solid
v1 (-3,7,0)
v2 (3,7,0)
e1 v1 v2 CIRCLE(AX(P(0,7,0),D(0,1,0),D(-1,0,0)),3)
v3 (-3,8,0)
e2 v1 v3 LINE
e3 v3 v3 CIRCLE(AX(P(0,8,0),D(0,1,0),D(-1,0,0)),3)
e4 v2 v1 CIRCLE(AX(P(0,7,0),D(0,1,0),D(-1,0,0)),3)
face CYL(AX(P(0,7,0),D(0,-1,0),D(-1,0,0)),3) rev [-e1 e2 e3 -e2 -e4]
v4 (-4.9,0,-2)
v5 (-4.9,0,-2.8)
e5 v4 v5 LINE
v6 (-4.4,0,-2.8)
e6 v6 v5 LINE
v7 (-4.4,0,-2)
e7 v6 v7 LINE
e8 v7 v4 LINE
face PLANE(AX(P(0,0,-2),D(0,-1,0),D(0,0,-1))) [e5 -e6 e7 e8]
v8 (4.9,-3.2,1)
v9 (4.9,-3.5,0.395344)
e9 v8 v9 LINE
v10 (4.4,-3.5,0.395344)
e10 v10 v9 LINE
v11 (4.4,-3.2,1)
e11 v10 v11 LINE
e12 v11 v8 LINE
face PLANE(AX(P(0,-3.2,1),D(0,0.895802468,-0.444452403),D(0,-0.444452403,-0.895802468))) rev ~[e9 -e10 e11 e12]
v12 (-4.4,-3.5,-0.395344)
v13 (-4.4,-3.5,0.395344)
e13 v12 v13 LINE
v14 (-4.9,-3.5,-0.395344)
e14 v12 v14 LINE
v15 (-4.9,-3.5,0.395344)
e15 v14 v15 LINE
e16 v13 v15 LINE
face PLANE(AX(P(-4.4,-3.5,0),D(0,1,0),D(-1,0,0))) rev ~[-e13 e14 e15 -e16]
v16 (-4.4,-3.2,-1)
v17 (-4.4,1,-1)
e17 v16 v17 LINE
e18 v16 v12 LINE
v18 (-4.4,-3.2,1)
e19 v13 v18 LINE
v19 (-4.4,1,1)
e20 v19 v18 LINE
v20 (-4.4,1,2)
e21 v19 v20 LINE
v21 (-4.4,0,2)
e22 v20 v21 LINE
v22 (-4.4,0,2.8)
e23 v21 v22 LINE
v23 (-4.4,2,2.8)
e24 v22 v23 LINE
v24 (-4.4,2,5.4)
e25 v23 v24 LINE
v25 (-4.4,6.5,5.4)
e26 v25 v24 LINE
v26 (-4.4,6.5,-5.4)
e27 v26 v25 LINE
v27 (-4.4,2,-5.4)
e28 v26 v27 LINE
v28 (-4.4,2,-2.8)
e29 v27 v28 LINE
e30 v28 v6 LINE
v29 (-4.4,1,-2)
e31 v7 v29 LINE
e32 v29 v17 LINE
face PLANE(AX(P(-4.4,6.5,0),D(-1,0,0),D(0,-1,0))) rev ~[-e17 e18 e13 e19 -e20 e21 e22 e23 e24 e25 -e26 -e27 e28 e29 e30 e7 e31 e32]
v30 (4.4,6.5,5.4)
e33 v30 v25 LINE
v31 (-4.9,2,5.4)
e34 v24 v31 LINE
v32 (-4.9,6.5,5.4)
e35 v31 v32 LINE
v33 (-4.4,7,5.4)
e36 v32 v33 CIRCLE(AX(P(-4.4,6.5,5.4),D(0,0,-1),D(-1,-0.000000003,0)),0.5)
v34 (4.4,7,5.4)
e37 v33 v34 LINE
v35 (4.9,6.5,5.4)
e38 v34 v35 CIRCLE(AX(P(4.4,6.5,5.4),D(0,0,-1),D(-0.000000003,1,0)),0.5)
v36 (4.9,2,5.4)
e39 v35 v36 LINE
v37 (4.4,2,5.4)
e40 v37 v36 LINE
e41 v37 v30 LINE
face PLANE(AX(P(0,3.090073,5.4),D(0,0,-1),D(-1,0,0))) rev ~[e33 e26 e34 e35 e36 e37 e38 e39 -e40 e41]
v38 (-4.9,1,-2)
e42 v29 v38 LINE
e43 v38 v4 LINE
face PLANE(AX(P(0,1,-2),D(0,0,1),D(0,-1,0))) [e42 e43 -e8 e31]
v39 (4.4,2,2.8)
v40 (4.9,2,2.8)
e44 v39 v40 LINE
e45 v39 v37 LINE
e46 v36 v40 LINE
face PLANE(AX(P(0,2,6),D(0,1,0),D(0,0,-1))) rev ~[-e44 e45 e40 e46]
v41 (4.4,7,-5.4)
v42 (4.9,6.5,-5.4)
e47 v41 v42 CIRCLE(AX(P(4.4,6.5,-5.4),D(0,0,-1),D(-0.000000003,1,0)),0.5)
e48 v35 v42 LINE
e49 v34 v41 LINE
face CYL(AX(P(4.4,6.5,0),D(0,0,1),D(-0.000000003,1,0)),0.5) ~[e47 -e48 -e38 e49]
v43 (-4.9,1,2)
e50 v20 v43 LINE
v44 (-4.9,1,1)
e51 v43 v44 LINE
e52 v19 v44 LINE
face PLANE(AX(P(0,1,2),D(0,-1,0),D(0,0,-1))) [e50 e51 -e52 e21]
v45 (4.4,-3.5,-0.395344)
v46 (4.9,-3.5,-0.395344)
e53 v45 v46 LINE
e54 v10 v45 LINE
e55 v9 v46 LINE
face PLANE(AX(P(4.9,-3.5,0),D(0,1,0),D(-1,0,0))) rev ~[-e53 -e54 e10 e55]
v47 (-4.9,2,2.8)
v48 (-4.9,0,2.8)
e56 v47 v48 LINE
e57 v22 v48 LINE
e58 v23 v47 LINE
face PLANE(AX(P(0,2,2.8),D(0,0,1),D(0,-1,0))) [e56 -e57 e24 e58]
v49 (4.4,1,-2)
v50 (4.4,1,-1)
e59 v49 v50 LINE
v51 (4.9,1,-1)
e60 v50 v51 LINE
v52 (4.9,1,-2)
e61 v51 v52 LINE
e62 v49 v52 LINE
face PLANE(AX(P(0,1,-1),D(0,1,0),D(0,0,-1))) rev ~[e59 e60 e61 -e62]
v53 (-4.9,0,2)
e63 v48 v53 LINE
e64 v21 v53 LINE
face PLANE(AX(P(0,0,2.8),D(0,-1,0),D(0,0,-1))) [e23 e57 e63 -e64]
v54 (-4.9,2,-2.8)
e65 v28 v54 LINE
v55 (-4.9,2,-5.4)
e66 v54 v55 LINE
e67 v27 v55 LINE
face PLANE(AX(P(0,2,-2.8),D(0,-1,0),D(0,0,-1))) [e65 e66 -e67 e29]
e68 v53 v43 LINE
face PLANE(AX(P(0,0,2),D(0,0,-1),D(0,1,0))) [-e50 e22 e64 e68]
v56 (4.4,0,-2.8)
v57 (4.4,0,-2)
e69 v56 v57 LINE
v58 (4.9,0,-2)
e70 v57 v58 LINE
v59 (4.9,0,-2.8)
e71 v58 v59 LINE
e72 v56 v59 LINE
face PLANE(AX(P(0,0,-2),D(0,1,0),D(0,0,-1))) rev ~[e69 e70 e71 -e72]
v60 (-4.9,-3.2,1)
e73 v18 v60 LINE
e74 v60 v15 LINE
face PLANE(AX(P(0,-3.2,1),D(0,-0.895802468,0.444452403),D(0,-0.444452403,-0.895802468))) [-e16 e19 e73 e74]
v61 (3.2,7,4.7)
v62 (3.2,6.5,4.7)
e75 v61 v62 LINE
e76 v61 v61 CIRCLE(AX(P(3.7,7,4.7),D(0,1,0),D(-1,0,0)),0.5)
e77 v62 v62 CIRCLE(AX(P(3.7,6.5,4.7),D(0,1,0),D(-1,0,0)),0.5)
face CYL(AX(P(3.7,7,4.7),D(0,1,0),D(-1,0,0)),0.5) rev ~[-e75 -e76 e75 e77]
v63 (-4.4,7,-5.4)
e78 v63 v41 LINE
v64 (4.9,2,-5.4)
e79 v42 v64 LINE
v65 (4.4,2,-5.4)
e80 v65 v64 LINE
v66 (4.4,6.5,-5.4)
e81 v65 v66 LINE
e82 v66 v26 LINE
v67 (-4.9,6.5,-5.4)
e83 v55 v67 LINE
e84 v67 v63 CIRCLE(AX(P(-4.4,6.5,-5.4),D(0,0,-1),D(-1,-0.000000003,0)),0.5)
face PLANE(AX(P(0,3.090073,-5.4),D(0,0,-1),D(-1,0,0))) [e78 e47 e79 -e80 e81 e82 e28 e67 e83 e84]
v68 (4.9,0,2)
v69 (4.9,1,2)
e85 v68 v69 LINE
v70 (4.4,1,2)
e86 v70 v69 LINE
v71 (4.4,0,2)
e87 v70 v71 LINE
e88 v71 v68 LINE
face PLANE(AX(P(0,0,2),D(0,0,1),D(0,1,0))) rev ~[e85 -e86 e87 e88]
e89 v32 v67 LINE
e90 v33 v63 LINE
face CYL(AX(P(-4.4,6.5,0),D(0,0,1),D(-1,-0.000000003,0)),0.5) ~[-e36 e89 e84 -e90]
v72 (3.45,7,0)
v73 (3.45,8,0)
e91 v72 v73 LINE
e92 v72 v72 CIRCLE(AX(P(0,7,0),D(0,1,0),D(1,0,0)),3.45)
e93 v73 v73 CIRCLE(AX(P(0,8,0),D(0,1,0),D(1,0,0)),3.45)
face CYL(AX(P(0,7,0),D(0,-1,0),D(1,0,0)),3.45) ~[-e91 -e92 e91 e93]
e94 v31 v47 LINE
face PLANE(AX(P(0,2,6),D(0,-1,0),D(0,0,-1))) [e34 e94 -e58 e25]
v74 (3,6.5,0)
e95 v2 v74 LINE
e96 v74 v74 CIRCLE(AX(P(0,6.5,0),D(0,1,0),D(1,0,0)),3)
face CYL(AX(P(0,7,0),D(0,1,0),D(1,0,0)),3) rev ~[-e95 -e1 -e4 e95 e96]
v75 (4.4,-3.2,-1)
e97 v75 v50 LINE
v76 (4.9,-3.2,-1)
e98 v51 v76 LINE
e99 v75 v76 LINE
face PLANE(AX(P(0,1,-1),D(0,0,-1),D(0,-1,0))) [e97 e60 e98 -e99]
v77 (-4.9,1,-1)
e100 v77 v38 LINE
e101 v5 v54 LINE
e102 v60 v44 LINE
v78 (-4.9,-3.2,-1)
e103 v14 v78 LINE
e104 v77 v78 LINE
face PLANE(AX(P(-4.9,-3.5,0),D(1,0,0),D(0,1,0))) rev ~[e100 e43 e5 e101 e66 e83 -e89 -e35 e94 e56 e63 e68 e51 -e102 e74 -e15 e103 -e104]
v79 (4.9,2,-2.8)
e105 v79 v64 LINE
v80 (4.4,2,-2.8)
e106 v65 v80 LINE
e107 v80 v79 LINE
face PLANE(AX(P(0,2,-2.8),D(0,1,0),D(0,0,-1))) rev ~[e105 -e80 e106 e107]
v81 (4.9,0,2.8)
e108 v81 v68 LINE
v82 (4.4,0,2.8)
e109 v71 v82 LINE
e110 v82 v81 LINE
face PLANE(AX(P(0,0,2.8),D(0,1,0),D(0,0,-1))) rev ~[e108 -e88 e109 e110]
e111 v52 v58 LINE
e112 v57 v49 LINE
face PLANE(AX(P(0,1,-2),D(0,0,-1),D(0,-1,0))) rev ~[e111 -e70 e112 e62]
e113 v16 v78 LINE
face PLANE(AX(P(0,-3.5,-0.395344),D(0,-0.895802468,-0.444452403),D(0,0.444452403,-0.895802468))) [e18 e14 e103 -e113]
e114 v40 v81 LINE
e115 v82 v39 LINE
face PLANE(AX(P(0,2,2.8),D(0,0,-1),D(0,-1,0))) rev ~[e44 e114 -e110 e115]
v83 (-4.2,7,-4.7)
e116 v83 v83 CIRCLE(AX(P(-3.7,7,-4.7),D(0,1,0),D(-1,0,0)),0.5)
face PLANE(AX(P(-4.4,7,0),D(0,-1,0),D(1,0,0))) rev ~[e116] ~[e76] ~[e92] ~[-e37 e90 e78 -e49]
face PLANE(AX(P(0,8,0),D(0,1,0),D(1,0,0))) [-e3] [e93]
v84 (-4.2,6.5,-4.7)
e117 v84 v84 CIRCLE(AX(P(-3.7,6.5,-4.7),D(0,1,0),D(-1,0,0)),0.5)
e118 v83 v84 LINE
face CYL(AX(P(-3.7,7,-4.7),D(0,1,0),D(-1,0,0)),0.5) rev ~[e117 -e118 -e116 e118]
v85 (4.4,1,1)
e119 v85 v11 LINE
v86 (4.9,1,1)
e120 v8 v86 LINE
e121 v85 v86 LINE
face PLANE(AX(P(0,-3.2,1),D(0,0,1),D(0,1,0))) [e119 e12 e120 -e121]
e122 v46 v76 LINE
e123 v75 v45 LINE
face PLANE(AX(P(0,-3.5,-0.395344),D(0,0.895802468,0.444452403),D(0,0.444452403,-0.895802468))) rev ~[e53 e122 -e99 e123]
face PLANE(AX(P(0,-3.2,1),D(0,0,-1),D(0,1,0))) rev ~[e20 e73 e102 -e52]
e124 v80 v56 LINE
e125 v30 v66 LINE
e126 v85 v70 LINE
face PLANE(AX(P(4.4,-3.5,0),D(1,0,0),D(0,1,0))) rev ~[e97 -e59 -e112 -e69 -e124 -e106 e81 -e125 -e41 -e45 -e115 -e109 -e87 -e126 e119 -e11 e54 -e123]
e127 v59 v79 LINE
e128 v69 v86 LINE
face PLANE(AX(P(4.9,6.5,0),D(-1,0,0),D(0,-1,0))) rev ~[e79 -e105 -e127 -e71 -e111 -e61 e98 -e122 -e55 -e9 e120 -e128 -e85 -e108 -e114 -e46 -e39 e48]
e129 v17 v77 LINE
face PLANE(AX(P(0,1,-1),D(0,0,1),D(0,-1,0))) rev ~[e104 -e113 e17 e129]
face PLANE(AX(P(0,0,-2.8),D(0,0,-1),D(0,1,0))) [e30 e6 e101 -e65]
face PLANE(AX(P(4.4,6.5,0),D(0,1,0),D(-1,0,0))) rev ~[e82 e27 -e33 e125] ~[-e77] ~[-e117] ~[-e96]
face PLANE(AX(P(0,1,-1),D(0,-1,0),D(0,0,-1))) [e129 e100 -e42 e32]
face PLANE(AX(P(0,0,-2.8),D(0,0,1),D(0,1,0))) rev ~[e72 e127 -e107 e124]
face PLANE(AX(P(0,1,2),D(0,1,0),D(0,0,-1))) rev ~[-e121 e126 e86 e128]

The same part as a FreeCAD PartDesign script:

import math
import FreeCAD as App
import Part
import Sketcher
Q = App.Units.Quantity


def add_polygon(sketch, points):
    """Adds a closed chain of lines whose ends are joined by coincident constraints."""
    first, n = sketch.GeometryCount, len(points)
    for a, b in zip(points, points[1:] + points[:1]):
        sketch.addGeometry(Part.LineSegment(App.Vector(*a, 0), App.Vector(*b, 0)), False)
    for i in range(n):
        sketch.addConstraint(Sketcher.Constraint("Coincident", first + i, 2, first + (i + 1) % n, 1))

doc = App.newDocument("Part")
params = doc.addObject("Spreadsheet::Sheet", "Params")
for row, (alias, value) in enumerate([
    ("sketch1_radius", "0.5 mm"),
    ("sketch1_height", "10 mm"),
    ("sketch1_width", "8.8 mm"),
    ("pad1_length", "5.4 mm"),
    ("pad1_length2", "5.4 mm"),
    ("sketch2_width", "7 mm"),
    ("sketch2_width2", "2 mm"),
    ("sketch2_width3", "1 mm"),
    ("sketch2_height", "12 mm"),
    ("sketch2_width4", "4.2 mm"),
    ("sketch3_diameter", "1 mm"),
    ("sketch4_diameter", "6 mm"),
    ("sketch4_diameter2", "6.9 mm"),
    ("pad2_length", "1 mm"),
    ("sketch5_diameter", "6 mm"),
], start=1):
    params.set(f"A{row}", alias)
    params.set(f"B{row}", "=" + value)
    params.setAlias(f"B{row}", alias)

body = doc.addObject("PartDesign::Body", "Body")

sketch1 = doc.addObject("Sketcher::SketchObject", "Sketch")
body.addObject(sketch1)
sketch1.AttachmentSupport = (doc.XY_Plane, [""])
sketch1.MapMode = "FlatFace"
sketch1.addGeometry(Part.LineSegment(App.Vector(-4.9, 6.5, 0), App.Vector(-4.9, -3.5, 0)), False)
sketch1.addGeometry(Part.LineSegment(App.Vector(-4.9, -3.5, 0), App.Vector(-4.4, -3.5, 0)), False)
sketch1.addGeometry(Part.LineSegment(App.Vector(-4.4, -3.5, 0), App.Vector(-4.4, 6.5, 0)), False)
sketch1.addGeometry(Part.LineSegment(App.Vector(-4.4, 6.5, 0), App.Vector(4.4, 6.5, 0)), False)
sketch1.addGeometry(Part.LineSegment(App.Vector(4.4, 6.5, 0), App.Vector(4.4, -3.5, 0)), False)
sketch1.addGeometry(Part.LineSegment(App.Vector(4.4, -3.5, 0), App.Vector(4.9, -3.5, 0)), False)
sketch1.addGeometry(Part.LineSegment(App.Vector(4.9, -3.5, 0), App.Vector(4.9, 6.5, 0)), False)
sketch1.addGeometry(Part.ArcOfCircle(Part.Circle(App.Vector(4.4, 6.5, 0), App.Vector(0, 0, 1), 0.5), math.radians(0), math.radians(90)), False)
sketch1.addGeometry(Part.LineSegment(App.Vector(4.4, 7, 0), App.Vector(-4.4, 7, 0)), False)
sketch1.addGeometry(Part.ArcOfCircle(Part.Circle(App.Vector(-4.4, 6.5, 0), App.Vector(0, 0, 1), 0.5), math.radians(90), math.radians(180)), False)
sketch1.addConstraint(Sketcher.Constraint("Coincident", 0, 2, 1, 1))
sketch1.addConstraint(Sketcher.Constraint("Coincident", 1, 2, 2, 1))
sketch1.addConstraint(Sketcher.Constraint("Coincident", 2, 2, 3, 1))
sketch1.addConstraint(Sketcher.Constraint("Coincident", 3, 2, 4, 1))
sketch1.addConstraint(Sketcher.Constraint("Coincident", 4, 2, 5, 1))
sketch1.addConstraint(Sketcher.Constraint("Coincident", 5, 2, 6, 1))
sketch1.addConstraint(Sketcher.Constraint("Tangent", 6, 2, 7, 1))
sketch1.addConstraint(Sketcher.Constraint("Tangent", 7, 2, 8, 1))
sketch1.addConstraint(Sketcher.Constraint("Tangent", 8, 2, 9, 1))
sketch1.addConstraint(Sketcher.Constraint("Tangent", 9, 2, 0, 1))
sketch1.addConstraint(Sketcher.Constraint("Vertical", 0))
sketch1.addConstraint(Sketcher.Constraint("Horizontal", 1))
sketch1.addConstraint(Sketcher.Constraint("Vertical", 2))
sketch1.addConstraint(Sketcher.Constraint("Horizontal", 3))
sketch1.addConstraint(Sketcher.Constraint("Vertical", 4))
sketch1.addConstraint(Sketcher.Constraint("Horizontal", 5))
sketch1.addConstraint(Sketcher.Constraint("Vertical", 6))
sketch1.addConstraint(Sketcher.Constraint("Horizontal", 8))
sketch1.addConstraint(Sketcher.Constraint("Coincident", 2, 2, 9, 3))
sketch1.addConstraint(Sketcher.Constraint("Coincident", 3, 2, 7, 3))
sketch1.addConstraint(Sketcher.Constraint("Symmetric", 1, 2, 4, 2, -2))
sketch1.addConstraint(Sketcher.Constraint("Radius", 7, Q("0.5 mm")))
sketch1.addConstraint(Sketcher.Constraint("DistanceY", 0, 2, 0, 1, Q("10 mm")))
sketch1.addConstraint(Sketcher.Constraint("DistanceX", 3, 1, 3, 2, Q("8.8 mm")))
sketch1.addConstraint(Sketcher.Constraint("DistanceY", -1, 1, 7, 2, Q("7 mm")))
sketch1.setExpression("Constraints[21]", "Params.sketch1_radius")
sketch1.setExpression("Constraints[22]", "Params.sketch1_height")
sketch1.setExpression("Constraints[23]", "Params.sketch1_width")
pad1 = doc.addObject("PartDesign::Pad", "Pad")
body.addObject(pad1)
pad1.Profile = sketch1
pad1.Type = "TwoLengths"
pad1.setExpression("Length", "Params.pad1_length")
pad1.setExpression("Length2", "Params.pad1_length2")

sketch2 = doc.addObject("Sketcher::SketchObject", "Sketch001")
body.addObject(sketch2)
sketch2.AttachmentSupport = (doc.YZ_Plane, [""])
sketch2.MapMode = "FlatFace"
add_polygon(sketch2, [(2, 2.8), (2, 6), (-5, 6), (-5, -6), (2, -6), (2, -2.8), (0, -2.8), (0, -2), (1, -2), (1, -1), (-3.2, -1), (-3.5, -0.4), (-3.5, 0.4), (-3.2, 1), (1, 1), (1, 2), (0, 2), (0, 2.8)])
sketch2.addConstraint(Sketcher.Constraint("Vertical", 0))
sketch2.addConstraint(Sketcher.Constraint("Horizontal", 1))
sketch2.addConstraint(Sketcher.Constraint("Vertical", 2))
sketch2.addConstraint(Sketcher.Constraint("Horizontal", 3))
sketch2.addConstraint(Sketcher.Constraint("Vertical", 4))
sketch2.addConstraint(Sketcher.Constraint("Horizontal", 5))
sketch2.addConstraint(Sketcher.Constraint("Vertical", 6))
sketch2.addConstraint(Sketcher.Constraint("Horizontal", 7))
sketch2.addConstraint(Sketcher.Constraint("Vertical", 8))
sketch2.addConstraint(Sketcher.Constraint("Horizontal", 9))
sketch2.addConstraint(Sketcher.Constraint("Vertical", 11))
sketch2.addConstraint(Sketcher.Constraint("Horizontal", 13))
sketch2.addConstraint(Sketcher.Constraint("Vertical", 14))
sketch2.addConstraint(Sketcher.Constraint("Horizontal", 15))
sketch2.addConstraint(Sketcher.Constraint("Vertical", 16))
sketch2.addConstraint(Sketcher.Constraint("Horizontal", 17))
sketch2.addConstraint(Sketcher.Constraint("Symmetric", 6, 2, 15, 2, -1, 1))
sketch2.addConstraint(Sketcher.Constraint("Symmetric", 0, 2, 3, 2, -1))
sketch2.addConstraint(Sketcher.Constraint("Symmetric", 9, 2, 12, 2, -1))
sketch2.addConstraint(Sketcher.Constraint("Symmetric", 5, 2, 16, 2, -1))
sketch2.addConstraint(Sketcher.Constraint("Vertical", 8, 2, 13, 2))
sketch2.addConstraint(Sketcher.Constraint("Equal", 15, 8))
sketch2.addConstraint(Sketcher.Constraint("Equal", 10, 12))
sketch2.addConstraint(Sketcher.Constraint("DistanceX", 1, 2, 1, 1, Q("7 mm")))
sketch2.addConstraint(Sketcher.Constraint("DistanceX", 5, 2, 5, 1, Q("2 mm")))
sketch2.addConstraint(Sketcher.Constraint("DistanceX", 7, 1, 7, 2, Q("1 mm")))
sketch2.addConstraint(Sketcher.Constraint("DistanceY", 2, 2, 2, 1, Q("12 mm")))
sketch2.addConstraint(Sketcher.Constraint("DistanceX", 9, 2, 9, 1, Q("4.2 mm")))
sketch2.addConstraint(Sketcher.Constraint("DistanceY", 0, 1, 0, 2, Q("3.2 mm")))
sketch2.addConstraint(Sketcher.Constraint("DistanceY", 6, 1, 6, 2, Q("0.8 mm")))
sketch2.addConstraint(Sketcher.Constraint("DistanceX", 10, 2, -1, 1, Q("3.5 mm")))
sketch2.addConstraint(Sketcher.Constraint("DistanceY", 11, 1, 11, 2, Q("0.790688 mm")))
sketch2.setExpression("Constraints[41]", "Params.sketch2_width")
sketch2.setExpression("Constraints[42]", "Params.sketch2_width2")
sketch2.setExpression("Constraints[43]", "Params.sketch2_width3")
sketch2.setExpression("Constraints[44]", "Params.sketch2_height")
sketch2.setExpression("Constraints[45]", "Params.sketch2_width4")
pocket1 = doc.addObject("PartDesign::Pocket", "Pocket")
body.addObject(pocket1)
pocket1.Profile = sketch2
pocket1.Type = "ThroughAll"
pocket1.Midplane = True

sketch3 = doc.addObject("Sketcher::SketchObject", "Sketch002")
body.addObject(sketch3)
sketch3.AttachmentSupport = (doc.XZ_Plane, [""])
sketch3.MapMode = "FlatFace"
sketch3.AttachmentOffset = App.Placement(App.Vector(0, 0, -7), App.Rotation())
sketch3.addGeometry(Part.Circle(App.Vector(-3.7, -4.7, 0), App.Vector(0, 0, 1), 0.5), False)
sketch3.addGeometry(Part.Circle(App.Vector(3.7, 4.7, 0), App.Vector(0, 0, 1), 0.5), False)
sketch3.addConstraint(Sketcher.Constraint("Equal", 0, 1))
sketch3.addConstraint(Sketcher.Constraint("Symmetric", 0, 3, 1, 3, -1, 1))
sketch3.addConstraint(Sketcher.Constraint("Diameter", 0, Q("1 mm")))
sketch3.addConstraint(Sketcher.Constraint("DistanceX", 0, 3, -1, 1, Q("3.7 mm")))
sketch3.addConstraint(Sketcher.Constraint("DistanceY", 0, 3, -1, 1, Q("4.7 mm")))
sketch3.setExpression("Constraints[2]", "Params.sketch3_diameter")
pocket2 = doc.addObject("PartDesign::Pocket", "Pocket001")
body.addObject(pocket2)
pocket2.Profile = sketch3
pocket2.Type = "ThroughAll"
pocket2.Reversed = True

sketch4 = doc.addObject("Sketcher::SketchObject", "Sketch003")
body.addObject(sketch4)
sketch4.AttachmentSupport = (doc.XZ_Plane, [""])
sketch4.MapMode = "FlatFace"
sketch4.AttachmentOffset = App.Placement(App.Vector(0, 0, -7), App.Rotation())
sketch4.addGeometry(Part.Circle(App.Vector(0, 0, 0), App.Vector(0, 0, 1), 3.5), False)
sketch4.addGeometry(Part.Circle(App.Vector(0, 0, 0), App.Vector(0, 0, 1), 3), False)
sketch4.addConstraint(Sketcher.Constraint("Coincident", 0, 3, -1, 1))
sketch4.addConstraint(Sketcher.Constraint("Coincident", 1, 3, -1, 1))
sketch4.addConstraint(Sketcher.Constraint("Diameter", 1, Q("6 mm")))
sketch4.addConstraint(Sketcher.Constraint("Diameter", 0, Q("6.9 mm")))
sketch4.setExpression("Constraints[2]", "Params.sketch4_diameter")
sketch4.setExpression("Constraints[3]", "Params.sketch4_diameter2")
pad2 = doc.addObject("PartDesign::Pad", "Pad001")
body.addObject(pad2)
pad2.Profile = sketch4
pad2.setExpression("Length", "Params.pad2_length")
pad2.Reversed = True

sketch5 = doc.addObject("Sketcher::SketchObject", "Sketch004")
body.addObject(sketch5)
sketch5.AttachmentSupport = (doc.XZ_Plane, [""])
sketch5.MapMode = "FlatFace"
sketch5.AttachmentOffset = App.Placement(App.Vector(0, 0, -7), App.Rotation())
sketch5.addGeometry(Part.Circle(App.Vector(0, 0, 0), App.Vector(0, 0, 1), 3), False)
sketch5.addConstraint(Sketcher.Constraint("Coincident", 0, 3, -1, 1))
sketch5.addConstraint(Sketcher.Constraint("Diameter", 0, Q("6 mm")))
sketch5.setExpression("Constraints[1]", "Params.sketch5_diameter")
pocket3 = doc.addObject("PartDesign::Pocket", "Pocket002")
body.addObject(pocket3)
pocket3.Profile = sketch5
pocket3.Type = "ThroughAll"
pocket3.Reversed = True

doc.recompute()
